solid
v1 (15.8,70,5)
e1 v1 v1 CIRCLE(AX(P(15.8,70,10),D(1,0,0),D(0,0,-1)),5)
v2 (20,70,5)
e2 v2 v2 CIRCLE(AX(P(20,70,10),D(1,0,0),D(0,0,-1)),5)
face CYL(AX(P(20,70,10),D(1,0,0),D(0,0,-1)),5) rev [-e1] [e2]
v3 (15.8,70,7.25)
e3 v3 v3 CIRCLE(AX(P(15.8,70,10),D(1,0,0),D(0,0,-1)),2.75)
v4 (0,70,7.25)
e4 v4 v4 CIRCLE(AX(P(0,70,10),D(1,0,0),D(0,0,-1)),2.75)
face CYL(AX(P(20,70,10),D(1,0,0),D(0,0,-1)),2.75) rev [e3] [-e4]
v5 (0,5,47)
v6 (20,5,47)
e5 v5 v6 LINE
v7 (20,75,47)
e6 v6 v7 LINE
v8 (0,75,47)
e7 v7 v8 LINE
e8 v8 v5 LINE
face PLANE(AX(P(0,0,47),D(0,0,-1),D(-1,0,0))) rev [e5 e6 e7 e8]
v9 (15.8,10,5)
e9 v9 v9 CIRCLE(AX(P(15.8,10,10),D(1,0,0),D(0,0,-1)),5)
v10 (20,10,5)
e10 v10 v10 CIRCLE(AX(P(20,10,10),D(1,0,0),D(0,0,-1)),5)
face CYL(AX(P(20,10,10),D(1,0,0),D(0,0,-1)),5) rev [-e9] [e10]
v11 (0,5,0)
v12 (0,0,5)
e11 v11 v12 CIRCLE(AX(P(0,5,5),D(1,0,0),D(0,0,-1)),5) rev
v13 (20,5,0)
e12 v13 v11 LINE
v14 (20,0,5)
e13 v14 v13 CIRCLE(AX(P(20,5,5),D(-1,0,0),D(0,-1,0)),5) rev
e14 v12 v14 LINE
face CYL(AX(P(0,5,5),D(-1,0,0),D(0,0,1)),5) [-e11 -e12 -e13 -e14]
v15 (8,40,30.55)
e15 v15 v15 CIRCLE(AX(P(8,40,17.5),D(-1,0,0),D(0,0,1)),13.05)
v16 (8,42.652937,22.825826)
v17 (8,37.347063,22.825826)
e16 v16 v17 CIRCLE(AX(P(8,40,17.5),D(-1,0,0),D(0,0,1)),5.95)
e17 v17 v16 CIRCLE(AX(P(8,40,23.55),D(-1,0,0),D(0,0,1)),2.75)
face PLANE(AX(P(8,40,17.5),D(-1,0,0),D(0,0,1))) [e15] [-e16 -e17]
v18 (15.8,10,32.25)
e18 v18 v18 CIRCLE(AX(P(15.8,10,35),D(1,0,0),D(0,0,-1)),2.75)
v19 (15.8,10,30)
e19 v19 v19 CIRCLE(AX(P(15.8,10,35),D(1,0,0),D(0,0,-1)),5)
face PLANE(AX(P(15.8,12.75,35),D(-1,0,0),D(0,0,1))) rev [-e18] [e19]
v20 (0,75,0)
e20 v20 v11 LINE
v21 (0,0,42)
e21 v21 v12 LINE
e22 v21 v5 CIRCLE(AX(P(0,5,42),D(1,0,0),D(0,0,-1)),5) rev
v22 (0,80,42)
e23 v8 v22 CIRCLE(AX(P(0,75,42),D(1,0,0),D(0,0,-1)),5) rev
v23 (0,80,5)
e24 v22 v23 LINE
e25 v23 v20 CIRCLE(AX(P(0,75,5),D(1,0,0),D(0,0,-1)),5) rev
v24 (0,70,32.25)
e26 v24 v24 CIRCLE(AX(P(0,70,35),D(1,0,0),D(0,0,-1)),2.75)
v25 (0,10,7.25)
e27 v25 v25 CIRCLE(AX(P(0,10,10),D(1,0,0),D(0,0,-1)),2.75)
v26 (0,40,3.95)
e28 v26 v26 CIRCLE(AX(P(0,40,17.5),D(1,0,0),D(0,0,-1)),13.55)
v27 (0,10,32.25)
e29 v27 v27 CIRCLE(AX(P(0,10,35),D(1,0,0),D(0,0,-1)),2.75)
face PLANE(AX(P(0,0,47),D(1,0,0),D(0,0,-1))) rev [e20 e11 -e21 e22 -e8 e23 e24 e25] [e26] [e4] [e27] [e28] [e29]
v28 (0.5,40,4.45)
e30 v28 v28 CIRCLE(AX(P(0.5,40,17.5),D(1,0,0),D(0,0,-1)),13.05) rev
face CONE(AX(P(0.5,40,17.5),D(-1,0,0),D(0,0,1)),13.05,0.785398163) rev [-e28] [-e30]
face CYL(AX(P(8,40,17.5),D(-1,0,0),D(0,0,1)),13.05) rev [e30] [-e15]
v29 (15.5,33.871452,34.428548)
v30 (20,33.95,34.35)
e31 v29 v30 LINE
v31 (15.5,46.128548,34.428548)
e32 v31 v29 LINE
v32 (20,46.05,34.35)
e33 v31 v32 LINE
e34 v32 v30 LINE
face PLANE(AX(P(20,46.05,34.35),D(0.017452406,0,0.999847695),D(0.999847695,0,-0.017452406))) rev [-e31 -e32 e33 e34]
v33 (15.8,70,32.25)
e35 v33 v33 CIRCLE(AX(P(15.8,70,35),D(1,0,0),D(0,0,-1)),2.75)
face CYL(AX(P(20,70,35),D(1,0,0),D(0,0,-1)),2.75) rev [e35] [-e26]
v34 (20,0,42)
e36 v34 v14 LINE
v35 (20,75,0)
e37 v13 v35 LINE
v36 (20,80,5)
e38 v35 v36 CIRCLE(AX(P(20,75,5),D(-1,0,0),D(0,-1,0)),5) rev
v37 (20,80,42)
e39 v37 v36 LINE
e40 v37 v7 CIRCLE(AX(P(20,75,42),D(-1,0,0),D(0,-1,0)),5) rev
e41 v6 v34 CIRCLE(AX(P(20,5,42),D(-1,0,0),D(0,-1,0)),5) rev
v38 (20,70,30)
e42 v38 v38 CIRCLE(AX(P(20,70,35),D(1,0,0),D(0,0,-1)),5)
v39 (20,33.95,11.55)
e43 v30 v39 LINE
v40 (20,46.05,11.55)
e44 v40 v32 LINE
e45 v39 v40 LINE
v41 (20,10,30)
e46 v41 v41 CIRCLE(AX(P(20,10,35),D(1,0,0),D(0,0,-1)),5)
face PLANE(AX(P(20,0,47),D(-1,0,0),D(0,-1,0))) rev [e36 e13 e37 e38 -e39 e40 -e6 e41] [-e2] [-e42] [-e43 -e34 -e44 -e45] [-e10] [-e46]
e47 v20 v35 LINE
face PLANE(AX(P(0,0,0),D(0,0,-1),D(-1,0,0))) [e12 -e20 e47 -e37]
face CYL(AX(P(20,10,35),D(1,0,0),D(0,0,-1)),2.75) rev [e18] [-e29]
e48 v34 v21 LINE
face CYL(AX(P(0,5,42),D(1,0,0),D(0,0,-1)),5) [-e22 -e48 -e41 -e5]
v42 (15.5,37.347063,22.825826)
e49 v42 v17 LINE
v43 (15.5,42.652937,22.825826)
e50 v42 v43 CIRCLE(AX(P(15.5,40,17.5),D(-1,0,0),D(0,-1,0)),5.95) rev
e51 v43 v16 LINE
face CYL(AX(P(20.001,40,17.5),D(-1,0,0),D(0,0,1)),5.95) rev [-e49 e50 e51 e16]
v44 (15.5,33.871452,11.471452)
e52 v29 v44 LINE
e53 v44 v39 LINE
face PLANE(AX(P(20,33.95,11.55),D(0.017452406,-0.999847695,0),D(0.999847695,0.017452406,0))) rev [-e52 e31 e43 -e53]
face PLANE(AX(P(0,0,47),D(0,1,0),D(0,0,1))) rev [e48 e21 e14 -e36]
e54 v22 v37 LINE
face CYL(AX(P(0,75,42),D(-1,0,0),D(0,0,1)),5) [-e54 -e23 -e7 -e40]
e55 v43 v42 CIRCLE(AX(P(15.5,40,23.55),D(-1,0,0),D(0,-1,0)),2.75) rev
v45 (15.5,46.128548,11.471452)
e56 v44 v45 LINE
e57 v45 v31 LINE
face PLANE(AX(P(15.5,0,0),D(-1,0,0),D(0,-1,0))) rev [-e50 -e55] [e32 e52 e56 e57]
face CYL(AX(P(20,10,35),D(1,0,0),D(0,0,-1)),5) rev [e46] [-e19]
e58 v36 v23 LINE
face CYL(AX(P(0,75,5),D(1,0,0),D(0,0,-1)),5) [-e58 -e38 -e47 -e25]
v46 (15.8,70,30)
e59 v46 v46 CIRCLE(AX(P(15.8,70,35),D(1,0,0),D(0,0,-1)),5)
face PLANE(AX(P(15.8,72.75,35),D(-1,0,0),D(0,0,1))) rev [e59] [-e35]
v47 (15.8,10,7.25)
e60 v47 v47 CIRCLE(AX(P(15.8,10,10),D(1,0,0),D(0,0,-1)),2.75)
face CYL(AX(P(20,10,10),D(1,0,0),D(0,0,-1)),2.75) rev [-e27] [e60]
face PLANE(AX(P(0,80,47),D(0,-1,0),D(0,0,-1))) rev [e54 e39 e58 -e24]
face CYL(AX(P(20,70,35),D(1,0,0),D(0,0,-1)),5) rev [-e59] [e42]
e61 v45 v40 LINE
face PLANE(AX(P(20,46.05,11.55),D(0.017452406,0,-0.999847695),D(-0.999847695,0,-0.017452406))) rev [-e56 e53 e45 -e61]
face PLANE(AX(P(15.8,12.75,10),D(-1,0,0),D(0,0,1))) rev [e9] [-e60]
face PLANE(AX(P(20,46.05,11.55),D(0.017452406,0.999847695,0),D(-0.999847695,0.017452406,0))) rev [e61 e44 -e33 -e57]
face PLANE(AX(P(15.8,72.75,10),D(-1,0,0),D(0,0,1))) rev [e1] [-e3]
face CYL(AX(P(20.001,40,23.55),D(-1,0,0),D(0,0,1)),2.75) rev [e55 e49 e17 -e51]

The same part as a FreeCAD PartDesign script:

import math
import FreeCAD as App
import Part
import Sketcher
Q = App.Units.Quantity


def edges_at(feature, points):
    """Names of the edges that pass closest to the given points."""
    edges = feature.Shape.Edges
    near = lambda p: min(range(len(edges)), key=lambda i: edges[i].distToShape(Part.Vertex(*p))[0])
    return sorted({f"Edge{near(p) + 1}" for p in points})

doc = App.newDocument("Part")
params = doc.addObject("Spreadsheet::Sheet", "Params")
for row, (alias, value) in enumerate([
    ("sketch1_width", "20 mm"),
    ("sketch1_height", "80 mm"),
    ("pad1_length", "47 mm"),
    ("sketch2_diameter", "26.1 mm"),
    ("pocket1_length", "8 mm"),
    ("sketch3_radius", "5.95 mm"),
    ("sketch3_radius2", "2.75 mm"),
    ("sketch4_diameter", "5.5 mm"),
    ("hole_diameter", "5.5 mm"),
    ("hole_cbore_diameter", "10 mm"),
    ("hole_cbore_depth", "4.2 mm"),
    ("fillet_radius", "5 mm"),
    ("sketch5_width", "12.1 mm"),
    ("sketch5_height", "22.8 mm"),
    ("pocket3_length", "4.5 mm"),
    ("pocket3_taper", "1 deg"),
    ("chamfer_size", "0.5 mm"),
], start=1):
    params.set(f"A{row}", alias)
    params.set(f"B{row}", "=" + value)
    params.setAlias(f"B{row}", alias)

body = doc.addObject("PartDesign::Body", "Body")

# Sketch on XY plane
sketch1 = body.newObject("Sketcher::SketchObject", "Sketch")
sketch1.AttachmentSupport = (doc.getObject("XY_Plane"), [""])
sketch1.MapMode = "FlatFace"
sketch1.addGeometry(Part.LineSegment(App.Vector(0, 80, 0), App.Vector(0, 0, 0)), False)
sketch1.addGeometry(Part.LineSegment(App.Vector(0, 0, 0), App.Vector(20, 0, 0)), False)
sketch1.addGeometry(Part.LineSegment(App.Vector(20, 0, 0), App.Vector(20, 80, 0)), False)
sketch1.addGeometry(Part.LineSegment(App.Vector(20, 80, 0), App.Vector(0, 80, 0)), False)
sketch1.addConstraint(Sketcher.Constraint("Coincident", 0, 2, 1, 1))
sketch1.addConstraint(Sketcher.Constraint("Coincident", 1, 2, 2, 1))
sketch1.addConstraint(Sketcher.Constraint("Coincident", 2, 2, 3, 1))
sketch1.addConstraint(Sketcher.Constraint("Coincident", 3, 2, 0, 1))
sketch1.addConstraint(Sketcher.Constraint("Vertical", 0))
sketch1.addConstraint(Sketcher.Constraint("Horizontal", 1))
sketch1.addConstraint(Sketcher.Constraint("Vertical", 2))
sketch1.addConstraint(Sketcher.Constraint("Horizontal", 3))
sketch1.addConstraint(Sketcher.Constraint("Coincident", 0, 2, -1, 1))
sketch1.addConstraint(Sketcher.Constraint("DistanceX", 1, 1, 1, 2, Q("20 mm")))
sketch1.addConstraint(Sketcher.Constraint("DistanceY", 0, 2, 0, 1, Q("80 mm")))
sketch1.setExpression("Constraints[9]", "Params.sketch1_width")
sketch1.setExpression("Constraints[10]", "Params.sketch1_height")
pad1 = body.newObject("PartDesign::Pad", "Pad")
pad1.Profile = sketch1
pad1.setExpression("Length", "Params.pad1_length")

# Sketch on YZ plane
sketch2 = body.newObject("Sketcher::SketchObject", "Sketch001")
sketch2.AttachmentSupport = (doc.getObject("YZ_Plane"), [""])
sketch2.MapMode = "FlatFace"
sketch2.addGeometry(Part.Circle(App.Vector(40, 18, 0), App.Vector(0, 0, 1), 13), False)
sketch2.addConstraint(Sketcher.Constraint("Diameter", 0, Q("26.1 mm")))
sketch2.addConstraint(Sketcher.Constraint("DistanceX", -1, 1, 0, 3, Q("40 mm")))
sketch2.addConstraint(Sketcher.Constraint("DistanceY", -1, 1, 0, 3, Q("17.5 mm")))
sketch2.setExpression("Constraints[0]", "Params.sketch2_diameter")
pocket1 = body.newObject("PartDesign::Pocket", "Pocket")
pocket1.Profile = sketch2
pocket1.setExpression("Length", "Params.pocket1_length")
pocket1.Reversed = True

# Sketch on YZ plane
sketch3 = body.newObject("Sketcher::SketchObject", "Sketch002")
sketch3.AttachmentSupport = (doc.getObject("YZ_Plane"), [""])
sketch3.MapMode = "FlatFace"
sketch3.AttachmentOffset = App.Placement(App.Vector(0, 0, 8), App.Rotation())
sketch3.addGeometry(Part.ArcOfCircle(Part.Circle(App.Vector(40, 17.5, 0), App.Vector(0, 0, 1), 6), math.radians(116), math.radians(424)), False)
sketch3.addGeometry(Part.ArcOfCircle(Part.Circle(App.Vector(40, 23.6, 0), App.Vector(0, 0, 1), 2.8), math.radians(-15), math.radians(195)), False)
sketch3.addConstraint(Sketcher.Constraint("Coincident", 0, 1, 1, 2))
sketch3.addConstraint(Sketcher.Constraint("Coincident", 1, 1, 0, 2))
sketch3.addConstraint(Sketcher.Constraint("Horizontal", 0, 1, 1, 1))
sketch3.addConstraint(Sketcher.Constraint("Radius", 0, Q("5.95 mm")))
sketch3.addConstraint(Sketcher.Constraint("Radius", 1, Q("2.75 mm")))
sketch3.addConstraint(Sketcher.Constraint("DistanceX", -1, 1, 0, 3, Q("40 mm")))
sketch3.addConstraint(Sketcher.Constraint("DistanceY", -1, 1, 0, 3, Q("17.5 mm")))
sketch3.addConstraint(Sketcher.Constraint("DistanceY", -1, 1, 1, 3, Q("23.55 mm")))
sketch3.setExpression("Constraints[3]", "Params.sketch3_radius")
sketch3.setExpression("Constraints[4]", "Params.sketch3_radius2")
pocket2 = body.newObject("PartDesign::Pocket", "Pocket001")
pocket2.Profile = sketch3
pocket2.Type = "UpToFirst"
pocket2.Reversed = True

# Sketch on YZ plane
sketch4 = body.newObject("Sketcher::SketchObject", "Sketch003")
sketch4.AttachmentSupport = (doc.getObject("YZ_Plane"), [""])
sketch4.MapMode = "FlatFace"
sketch4.AttachmentOffset = App.Placement(App.Vector(0, 0, 20), App.Rotation())
sketch4.addGeometry(Part.Circle(App.Vector(70, 10, 0), App.Vector(0, 0, 1), 2.8), False)
sketch4.addGeometry(Part.Circle(App.Vector(70, 35, 0), App.Vector(0, 0, 1), 2.8), False)
sketch4.addGeometry(Part.Circle(App.Vector(10, 35, 0), App.Vector(0, 0, 1), 2.8), False)
sketch4.addGeometry(Part.Circle(App.Vector(10, 10, 0), App.Vector(0, 0, 1), 2.8), False)
sketch4.addConstraint(Sketcher.Constraint("Equal", 0, 1))
sketch4.addConstraint(Sketcher.Constraint("Equal", 1, 2))
sketch4.addConstraint(Sketcher.Constraint("Equal", 2, 3))
sketch4.addConstraint(Sketcher.Constraint("Horizontal", 1, 3, 2, 3))
sketch4.addConstraint(Sketcher.Constraint("Horizontal", 0, 3, 3, 3))
sketch4.addConstraint(Sketcher.Constraint("Vertical", 0, 3, 1, 3))
sketch4.addConstraint(Sketcher.Constraint("Vertical", 2, 3, 3, 3))
sketch4.addConstraint(Sketcher.Constraint("Diameter", 0, Q("5.5 mm")))
sketch4.addConstraint(Sketcher.Constraint("DistanceX", -1, 1, 0, 3, Q("70 mm")))
sketch4.addConstraint(Sketcher.Constraint("DistanceY", -1, 1, 0, 3, Q("10 mm")))
sketch4.addConstraint(Sketcher.Constraint("DistanceY", -1, 1, 1, 3, Q("35 mm")))
sketch4.addConstraint(Sketcher.Constraint("DistanceX", -1, 1, 2, 3, Q("10 mm")))
sketch4.setExpression("Constraints[7]", "Params.sketch4_diameter")
doc.recompute()
hole = body.newObject("PartDesign::Hole", "Hole")
hole.Profile = sketch4
hole.ThreadType = "None"
hole.setExpression("Diameter", "Params.hole_diameter")
hole.DepthType = "ThroughAll"
hole.HoleCutType = "Counterbore"
hole.setExpression("HoleCutDiameter", "Params.hole_cbore_diameter")
hole.setExpression("HoleCutDepth", "Params.hole_cbore_depth")
doc.recompute()

fillet = body.newObject("PartDesign::Fillet", "Fillet")
fillet.Base = (hole, edges_at(hole, [
    (10, 80, 47),
    (10, 80, 0),
    (10, 0, 0),
    (10, 0, 47),
]))
fillet.setExpression("Radius", "Params.fillet_radius")

# Sketch on YZ plane
sketch5 = body.newObject("Sketcher::SketchObject", "Sketch004")
sketch5.AttachmentSupport = (doc.getObject("YZ_Plane"), [""])
sketch5.MapMode = "FlatFace"
sketch5.AttachmentOffset = App.Placement(App.Vector(0, 0, 20), App.Rotation())
sketch5.addGeometry(Part.LineSegment(App.Vector(46, 34, 0), App.Vector(34, 34, 0)), False)
sketch5.addGeometry(Part.LineSegment(App.Vector(34, 34, 0), App.Vector(34, 12, 0)), False)
sketch5.addGeometry(Part.LineSegment(App.Vector(34, 12, 0), App.Vector(46, 12, 0)), False)
sketch5.addGeometry(Part.LineSegment(App.Vector(46, 12, 0), App.Vector(46, 34, 0)), False)
sketch5.addConstraint(Sketcher.Constraint("Coincident", 0, 2, 1, 1))
sketch5.addConstraint(Sketcher.Constraint("Coincident", 1, 2, 2, 1))
sketch5.addConstraint(Sketcher.Constraint("Coincident", 2, 2, 3, 1))
sketch5.addConstraint(Sketcher.Constraint("Coincident", 3, 2, 0, 1))
sketch5.addConstraint(Sketcher.Constraint("Horizontal", 0))
sketch5.addConstraint(Sketcher.Constraint("Vertical", 1))
sketch5.addConstraint(Sketcher.Constraint("Horizontal", 2))
sketch5.addConstraint(Sketcher.Constraint("Vertical", 3))
sketch5.addConstraint(Sketcher.Constraint("DistanceX", 0, 2, 0, 1, Q("12.1 mm")))
sketch5.addConstraint(Sketcher.Constraint("DistanceY", 1, 2, 1, 1, Q("22.8 mm")))
sketch5.addConstraint(Sketcher.Constraint("DistanceX", -1, 1, 0, 2, Q("33.95 mm")))
sketch5.addConstraint(Sketcher.Constraint("DistanceY", -1, 1, 0, 2, Q("34.35 mm")))
sketch5.setExpression("Constraints[8]", "Params.sketch5_width")
sketch5.setExpression("Constraints[9]", "Params.sketch5_height")
pocket3 = body.newObject("PartDesign::Pocket", "Pocket002")
pocket3.Profile = sketch5
pocket3.setExpression("Length", "Params.pocket3_length")
pocket3.setExpression("TaperAngle", "Params.pocket3_taper")
doc.recompute()

chamfer = body.newObject("PartDesign::Chamfer", "Chamfer")
chamfer.Base = (pocket3, edges_at(pocket3, [(0, 40, 4.45)]))
chamfer.setExpression("Size", "Params.chamfer_size")

doc.recompute()
